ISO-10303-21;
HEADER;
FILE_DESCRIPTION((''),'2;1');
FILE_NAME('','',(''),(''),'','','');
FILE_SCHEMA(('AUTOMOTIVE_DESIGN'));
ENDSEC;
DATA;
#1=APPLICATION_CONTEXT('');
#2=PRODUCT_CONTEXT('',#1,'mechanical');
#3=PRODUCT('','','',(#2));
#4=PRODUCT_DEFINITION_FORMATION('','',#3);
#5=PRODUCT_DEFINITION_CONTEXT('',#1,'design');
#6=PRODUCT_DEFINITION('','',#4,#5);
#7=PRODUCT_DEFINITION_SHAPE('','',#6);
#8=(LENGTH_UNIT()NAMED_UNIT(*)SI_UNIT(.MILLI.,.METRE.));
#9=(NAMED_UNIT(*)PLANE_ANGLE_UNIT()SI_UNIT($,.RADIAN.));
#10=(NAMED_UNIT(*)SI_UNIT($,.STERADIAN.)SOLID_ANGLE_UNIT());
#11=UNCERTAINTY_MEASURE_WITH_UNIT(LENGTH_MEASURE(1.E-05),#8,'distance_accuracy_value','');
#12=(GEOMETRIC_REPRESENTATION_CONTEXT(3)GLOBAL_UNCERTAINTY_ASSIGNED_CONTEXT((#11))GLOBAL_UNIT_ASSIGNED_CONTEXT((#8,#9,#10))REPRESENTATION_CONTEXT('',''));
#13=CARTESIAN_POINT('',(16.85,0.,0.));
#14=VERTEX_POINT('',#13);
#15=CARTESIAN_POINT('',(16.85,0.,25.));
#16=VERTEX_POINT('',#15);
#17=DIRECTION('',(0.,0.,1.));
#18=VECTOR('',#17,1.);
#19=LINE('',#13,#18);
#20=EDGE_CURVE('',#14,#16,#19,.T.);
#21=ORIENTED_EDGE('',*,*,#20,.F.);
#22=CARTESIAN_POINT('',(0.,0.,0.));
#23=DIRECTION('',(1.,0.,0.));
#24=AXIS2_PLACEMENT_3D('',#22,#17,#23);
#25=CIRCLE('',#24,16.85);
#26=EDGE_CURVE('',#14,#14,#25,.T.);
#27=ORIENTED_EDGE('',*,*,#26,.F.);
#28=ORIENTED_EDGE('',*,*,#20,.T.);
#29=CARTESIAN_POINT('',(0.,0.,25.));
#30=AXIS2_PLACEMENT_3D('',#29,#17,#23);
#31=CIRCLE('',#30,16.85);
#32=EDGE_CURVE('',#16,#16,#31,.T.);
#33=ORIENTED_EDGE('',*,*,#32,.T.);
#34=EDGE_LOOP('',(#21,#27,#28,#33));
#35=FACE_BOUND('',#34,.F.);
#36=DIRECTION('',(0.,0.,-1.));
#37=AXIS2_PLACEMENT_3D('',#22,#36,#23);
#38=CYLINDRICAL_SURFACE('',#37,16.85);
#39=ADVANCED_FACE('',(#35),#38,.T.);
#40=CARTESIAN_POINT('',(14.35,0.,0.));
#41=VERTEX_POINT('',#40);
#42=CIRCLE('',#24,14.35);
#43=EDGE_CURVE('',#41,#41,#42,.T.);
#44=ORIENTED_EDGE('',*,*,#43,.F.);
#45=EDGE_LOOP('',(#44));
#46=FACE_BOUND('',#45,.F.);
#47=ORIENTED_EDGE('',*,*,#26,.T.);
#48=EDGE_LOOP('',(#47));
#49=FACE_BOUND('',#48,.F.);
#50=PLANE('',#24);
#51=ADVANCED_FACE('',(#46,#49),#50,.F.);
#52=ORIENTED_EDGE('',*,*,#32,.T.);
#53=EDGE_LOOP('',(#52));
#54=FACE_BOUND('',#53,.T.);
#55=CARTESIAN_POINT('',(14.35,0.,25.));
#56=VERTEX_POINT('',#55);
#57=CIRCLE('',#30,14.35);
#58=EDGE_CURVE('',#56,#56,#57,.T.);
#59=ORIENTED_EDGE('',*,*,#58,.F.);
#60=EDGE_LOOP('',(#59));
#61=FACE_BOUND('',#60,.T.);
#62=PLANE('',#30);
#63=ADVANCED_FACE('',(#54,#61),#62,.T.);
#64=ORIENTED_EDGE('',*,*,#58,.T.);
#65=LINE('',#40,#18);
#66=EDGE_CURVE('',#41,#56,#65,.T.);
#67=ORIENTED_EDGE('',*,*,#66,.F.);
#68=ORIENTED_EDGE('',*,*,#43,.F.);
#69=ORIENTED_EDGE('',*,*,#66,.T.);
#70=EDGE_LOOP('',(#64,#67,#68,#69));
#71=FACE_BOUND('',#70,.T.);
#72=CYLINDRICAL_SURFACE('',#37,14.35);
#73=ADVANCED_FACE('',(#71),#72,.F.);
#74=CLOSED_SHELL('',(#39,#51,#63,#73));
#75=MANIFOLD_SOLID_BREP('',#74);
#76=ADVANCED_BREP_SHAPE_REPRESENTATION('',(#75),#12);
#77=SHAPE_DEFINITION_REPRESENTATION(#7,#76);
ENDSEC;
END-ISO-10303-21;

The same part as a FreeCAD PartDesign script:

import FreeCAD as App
import Part
import Sketcher
from FreeCAD import Vector

doc = App.newDocument("Part")
params = doc.addObject("Spreadsheet::Sheet", "Params")
for row, (alias, value) in enumerate([
    ("sketch1_diameter", "33.7 mm"),
    ("sketch1_diameter2", "28.7 mm"),
    ("pad1_length", "25 mm"),
], start=1):
    params.set(f"A{row}", alias)
    params.set(f"B{row}", "=" + value)
    params.setAlias(f"B{row}", alias)

body = doc.addObject("PartDesign::Body", "Body")

# Sketch on XY plane
sketch1 = body.newObject("Sketcher::SketchObject", "Sketch")
sketch1.AttachmentSupport = (doc.getObject("XY_Plane"), [""])
sketch1.MapMode = "FlatFace"
sketch1.addGeometry([
    Part.Circle(Vector(0, 0, 0), Vector(0, 0, 1), 16.85),
    Part.Circle(Vector(0, 0, 0), Vector(0, 0, 1), 14.35),
], False)
sketch1.addConstraint([
    Sketcher.Constraint("Coincident", 0, 3, -1, 1),
    Sketcher.Constraint("Coincident", 1, 3, -1, 1),
    Sketcher.Constraint("Diameter", 0, 33.7),
    Sketcher.Constraint("Diameter", 1, 28.7),
])
sketch1.setExpression("Constraints[2]", "Params.sketch1_diameter")
sketch1.setExpression("Constraints[3]", "Params.sketch1_diameter2")
pad1 = body.newObject("PartDesign::Pad", "Pad")
pad1.Profile = sketch1
pad1.setExpression("Length", "Params.pad1_length")

doc.recompute()
